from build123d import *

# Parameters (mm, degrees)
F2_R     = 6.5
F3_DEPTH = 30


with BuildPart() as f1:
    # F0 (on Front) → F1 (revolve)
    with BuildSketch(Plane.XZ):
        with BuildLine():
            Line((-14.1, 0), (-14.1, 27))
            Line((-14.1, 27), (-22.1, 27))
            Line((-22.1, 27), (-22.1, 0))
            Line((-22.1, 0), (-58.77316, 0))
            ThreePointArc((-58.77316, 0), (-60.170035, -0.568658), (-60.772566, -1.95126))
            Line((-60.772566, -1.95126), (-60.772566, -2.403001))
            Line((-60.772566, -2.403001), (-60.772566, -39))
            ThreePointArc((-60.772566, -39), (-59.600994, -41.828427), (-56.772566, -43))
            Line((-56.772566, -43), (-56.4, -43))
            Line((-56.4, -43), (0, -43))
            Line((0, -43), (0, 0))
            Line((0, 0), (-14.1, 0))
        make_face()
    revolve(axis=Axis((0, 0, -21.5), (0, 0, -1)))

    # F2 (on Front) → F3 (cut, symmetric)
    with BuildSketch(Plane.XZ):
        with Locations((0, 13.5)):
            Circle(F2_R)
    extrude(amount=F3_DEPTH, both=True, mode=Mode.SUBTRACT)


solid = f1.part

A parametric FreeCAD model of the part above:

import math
import FreeCAD as App
import Part
import Sketcher

V = App.Vector
Q = App.Units.Quantity

doc = App.newDocument("Part")
body = doc.addObject("PartDesign::Body", "Body")

# Sketch on XZ plane
sketch1 = body.newObject("Sketcher::SketchObject", "Sketch")
sketch1.AttachmentSupport = (doc.getObject("XZ_Plane"), [""])
sketch1.MapMode = "FlatFace"
sketch1.addGeometry(Part.LineSegment(V(-14.1, 0, 0), V(-14.1, 27, 0)), False)
sketch1.addGeometry(Part.LineSegment(V(-14.1, 27, 0), V(-22.1, 27, 0)), False)
sketch1.addGeometry(Part.LineSegment(V(-22.1, 27, 0), V(-22.1, 0, 0)), False)
sketch1.addGeometry(Part.LineSegment(V(-22.1, 0, 0), V(-58.8, 0, 0)), False)
sketch1.addGeometry(Part.ArcOfCircle(Part.Circle(V(-58.8, -2, 0), V(0, 0, 1), 2), math.radians(90), math.radians(179)), False)
sketch1.addGeometry(Part.LineSegment(V(-60.8, -2, 0), V(-60.8, -39, 0)), False)
sketch1.addGeometry(Part.ArcOfCircle(Part.Circle(V(-56.8, -39, 0), V(0, 0, 1), 4), math.radians(180), math.radians(270)), False)
sketch1.addGeometry(Part.LineSegment(V(-56.8, -43, 0), V(0, -43, 0)), False)
sketch1.addGeometry(Part.LineSegment(V(0, -43, 0), V(0, 0, 0)), False)
sketch1.addGeometry(Part.LineSegment(V(0, 0, 0), V(-14.1, 0, 0)), False)
sketch1.addConstraint(Sketcher.Constraint("Coincident", 0, 2, 1, 1))
sketch1.addConstraint(Sketcher.Constraint("Coincident", 1, 2, 2, 1))
sketch1.addConstraint(Sketcher.Constraint("Coincident", 2, 2, 3, 1))
sketch1.addConstraint(Sketcher.Constraint("Tangent", 3, 2, 4, 1))
sketch1.addConstraint(Sketcher.Constraint("Coincident", 4, 2, 5, 1))
sketch1.addConstraint(Sketcher.Constraint("Tangent", 5, 2, 6, 1))
sketch1.addConstraint(Sketcher.Constraint("Tangent", 6, 2, 7, 1))
sketch1.addConstraint(Sketcher.Constraint("Coincident", 7, 2, 8, 1))
sketch1.addConstraint(Sketcher.Constraint("Coincident", 8, 2, 9, 1))
sketch1.addConstraint(Sketcher.Constraint("Coincident", 9, 2, 0, 1))
sketch1.addConstraint(Sketcher.Constraint("Vertical", 0))
sketch1.addConstraint(Sketcher.Constraint("Horizontal", 1))
sketch1.addConstraint(Sketcher.Constraint("Vertical", 2))
sketch1.addConstraint(Sketcher.Constraint("Horizontal", 3))
sketch1.addConstraint(Sketcher.Constraint("Vertical", 5))
sketch1.addConstraint(Sketcher.Constraint("Horizontal", 7))
sketch1.addConstraint(Sketcher.Constraint("Vertical", 8))
sketch1.addConstraint(Sketcher.Constraint("Horizontal", 9))
sketch1.addConstraint(Sketcher.Constraint("Coincident", 8, 2, -1, 1))
sketch1.addConstraint(Sketcher.Constraint("PointOnObject", 2, 2, -1))
sketch1.addConstraint(Sketcher.Constraint("Radius", 4, Q("2 mm")))
sketch1.addConstraint(Sketcher.Constraint("Radius", 6, Q("3.999999 mm")))
sketch1.addConstraint(Sketcher.Constraint("DistanceX", 1, 2, 1, 1, Q("8 mm")))
sketch1.addConstraint(Sketcher.Constraint("DistanceY", 0, 1, 0, 2, Q("27 mm")))
sketch1.addConstraint(Sketcher.Constraint("DistanceY", 8, 1, 8, 2, Q("43 mm")))
sketch1.addConstraint(Sketcher.Constraint("DistanceX", 9, 2, 9, 1, Q("14.1 mm")))
sketch1.addConstraint(Sketcher.Constraint("DistanceX", 3, 2, 3, 1, Q("36.67316 mm")))
sketch1.addConstraint(Sketcher.Constraint("DistanceY", 5, 2, 5, 1, Q("37.04874 mm")))
revolution = body.newObject("PartDesign::Revolution", "Revolution")
revolution.Profile = sketch1
revolution.ReferenceAxis = (sketch1, ["V_Axis"])
revolution.Angle = 360

# Sketch on XZ plane
sketch2 = body.newObject("Sketcher::SketchObject", "Sketch001")
sketch2.AttachmentSupport = (doc.getObject("XZ_Plane"), [""])
sketch2.MapMode = "FlatFace"
sketch2.addGeometry(Part.Circle(V(0, 14, 0), V(0, 0, 1), 6), False)
sketch2.addConstraint(Sketcher.Constraint("PointOnObject", 0, 3, -2))
sketch2.addConstraint(Sketcher.Constraint("Diameter", 0, Q("13 mm")))
sketch2.addConstraint(Sketcher.Constraint("DistanceY", -1, 1, 0, 3, Q("13.5 mm")))
pocket1 = body.newObject("PartDesign::Pocket", "Pocket")
pocket1.Profile = sketch2
pocket1.Length = 60
pocket1.Midplane = True

doc.recompute()
